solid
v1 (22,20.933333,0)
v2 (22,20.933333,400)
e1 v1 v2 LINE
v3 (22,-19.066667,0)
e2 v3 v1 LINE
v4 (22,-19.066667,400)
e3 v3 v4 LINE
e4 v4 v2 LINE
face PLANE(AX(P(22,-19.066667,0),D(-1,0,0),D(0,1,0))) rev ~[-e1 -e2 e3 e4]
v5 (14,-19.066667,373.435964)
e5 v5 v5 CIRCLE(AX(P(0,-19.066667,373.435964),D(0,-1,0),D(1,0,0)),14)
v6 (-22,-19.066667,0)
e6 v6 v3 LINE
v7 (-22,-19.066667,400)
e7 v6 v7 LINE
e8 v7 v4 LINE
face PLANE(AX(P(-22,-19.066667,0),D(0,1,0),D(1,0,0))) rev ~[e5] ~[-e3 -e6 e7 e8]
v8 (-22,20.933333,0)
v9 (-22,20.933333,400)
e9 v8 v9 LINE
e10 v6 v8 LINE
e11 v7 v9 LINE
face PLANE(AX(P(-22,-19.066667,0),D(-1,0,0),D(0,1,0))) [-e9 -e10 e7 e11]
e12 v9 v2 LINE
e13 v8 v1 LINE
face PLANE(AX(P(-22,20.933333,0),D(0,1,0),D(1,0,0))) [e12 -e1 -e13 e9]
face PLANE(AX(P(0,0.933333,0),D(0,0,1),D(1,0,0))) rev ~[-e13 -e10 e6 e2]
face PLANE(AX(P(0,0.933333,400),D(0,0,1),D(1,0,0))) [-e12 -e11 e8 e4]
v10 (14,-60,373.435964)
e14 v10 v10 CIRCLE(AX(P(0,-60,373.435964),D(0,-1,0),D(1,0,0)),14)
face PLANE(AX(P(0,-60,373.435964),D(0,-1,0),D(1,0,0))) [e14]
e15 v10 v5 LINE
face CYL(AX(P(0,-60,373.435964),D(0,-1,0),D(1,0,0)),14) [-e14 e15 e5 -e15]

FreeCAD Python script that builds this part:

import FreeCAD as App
import Part
import Sketcher

V = App.Vector

doc = App.newDocument("Part")
params = doc.addObject("Spreadsheet::Sheet", "Params")
for row, (alias, value) in enumerate([
    ("sketch1_width", "44 mm"),
    ("sketch1_height", "40 mm"),
    ("pad1_length", "400 mm"),
    ("sketch2_diameter", "28 mm"),
], start=1):
    params.set(f"A{row}", alias)
    params.set(f"B{row}", "=" + value)
    params.setAlias(f"B{row}", alias)

body = doc.addObject("PartDesign::Body", "Body")

sketch1 = body.newObject("Sketcher::SketchObject", "Sketch")
sketch1.AttachmentSupport = (doc.getObject("XY_Plane"), [""])
sketch1.MapMode = "FlatFace"
sketch1.addGeometry([
    Part.LineSegment(V(-22, 20.933333, 0), V(-22, -19.066667, 0)),
    Part.LineSegment(V(-22, -19.066667, 0), V(22, -19.066667, 0)),
    Part.LineSegment(V(22, -19.066667, 0), V(22, 20.933333, 0)),
    Part.LineSegment(V(22, 20.933333, 0), V(-22, 20.933333, 0)),
], False)
sketch1.addConstraint([
    Sketcher.Constraint("Coincident", 0, 2, 1, 1),
    Sketcher.Constraint("Coincident", 1, 2, 2, 1),
    Sketcher.Constraint("Coincident", 2, 2, 3, 1),
    Sketcher.Constraint("Coincident", 3, 2, 0, 1),
    Sketcher.Constraint("Vertical", 0),
    Sketcher.Constraint("Horizontal", 1),
    Sketcher.Constraint("Vertical", 2),
    Sketcher.Constraint("Horizontal", 3),
    Sketcher.Constraint("DistanceX", 1, 1, 1, 2, 44.0),
    Sketcher.Constraint("DistanceY", 0, 2, 0, 1, 40.0),
    Sketcher.Constraint("DistanceX", 0, 2, -1, 1, 22.0),
    Sketcher.Constraint("DistanceY", 0, 2, -1, 1, 19.066667),
])
sketch1.setExpression("Constraints[8]", "Params.sketch1_width")
sketch1.setExpression("Constraints[9]", "Params.sketch1_height")
pad1 = body.newObject("PartDesign::Pad", "Pad")
pad1.Profile = sketch1
pad1.setExpression("Length", "Params.pad1_length")

sketch2 = body.newObject("Sketcher::SketchObject", "Sketch001")
sketch2.AttachmentSupport = (doc.getObject("XZ_Plane"), [""])
sketch2.MapMode = "FlatFace"
sketch2.AttachmentOffset = App.Placement(V(0, 0, 60), App.Rotation())
sketch2.addGeometry(Part.Circle(V(0, 373.435964, 0), V(0, 0, 1), 14), False)
sketch2.addConstraint([
    Sketcher.Constraint("PointOnObject", 0, 3, -2),
    Sketcher.Constraint("Diameter", 0, 28.0),
    Sketcher.Constraint("DistanceY", -1, 1, 0, 3, 373.435964),
])
sketch2.setExpression("Constraints[1]", "Params.sketch2_diameter")
pad2 = body.newObject("PartDesign::Pad", "Pad001")
pad2.Profile = sketch2
pad2.Type = "UpToLast"
pad2.Reversed = True

doc.recompute()
